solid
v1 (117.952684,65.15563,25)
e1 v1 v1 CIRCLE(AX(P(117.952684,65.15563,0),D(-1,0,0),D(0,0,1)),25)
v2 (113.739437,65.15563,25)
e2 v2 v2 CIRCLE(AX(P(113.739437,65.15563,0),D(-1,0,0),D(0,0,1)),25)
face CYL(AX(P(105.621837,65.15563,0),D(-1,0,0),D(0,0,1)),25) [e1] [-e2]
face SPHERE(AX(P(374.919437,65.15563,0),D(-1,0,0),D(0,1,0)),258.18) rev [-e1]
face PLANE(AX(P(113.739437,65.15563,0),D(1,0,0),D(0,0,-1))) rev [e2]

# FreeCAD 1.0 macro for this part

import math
import FreeCAD as App
import Part
import Sketcher

V = App.Vector
Q = App.Units.Quantity

doc = App.newDocument("Part")
body = doc.addObject("PartDesign::Body", "Body")

sketch1 = body.newObject("Sketcher::SketchObject", "Sketch")
sketch1.AttachmentSupport = (doc.getObject("XY_Plane"), [""])
sketch1.MapMode = "FlatFace"
sketch1.addGeometry(Part.LineSegment(V(113.7, 90.2, 0), V(113.7, 65.2, 0)), False)
sketch1.addGeometry(Part.LineSegment(V(113.7, 65.2, 0), V(116.7, 65.2, 0)), False)
sketch1.addGeometry(Part.ArcOfCircle(Part.Circle(V(374.9, 65.2, 0), V(0, 0, 1), 258.2), math.radians(174.44), math.radians(180)), False)
sketch1.addGeometry(Part.LineSegment(V(118, 90.2, 0), V(113.7, 90.2, 0)), False)
sketch1.addGeometry(Part.LineSegment(V(113.7, 65.2, 0), V(374.9, 65.2, 0)), True)
sketch1.addConstraint(Sketcher.Constraint("Coincident", 0, 2, 1, 1))
sketch1.addConstraint(Sketcher.Constraint("Coincident", 1, 2, 2, 2))
sketch1.addConstraint(Sketcher.Constraint("Coincident", 2, 1, 3, 1))
sketch1.addConstraint(Sketcher.Constraint("Coincident", 3, 2, 0, 1))
sketch1.addConstraint(Sketcher.Constraint("Vertical", 0))
sketch1.addConstraint(Sketcher.Constraint("Horizontal", 1))
sketch1.addConstraint(Sketcher.Constraint("Horizontal", 3))
sketch1.addConstraint(Sketcher.Constraint("Horizontal", 4))
sketch1.addConstraint(Sketcher.Constraint("Coincident", 4, 1, 0, 2))
sketch1.addConstraint(Sketcher.Constraint("Coincident", 4, 2, 2, 3))
sketch1.addConstraint(Sketcher.Constraint("DistanceX", 1, 1, 1, 2, Q("3 mm")))
sketch1.addConstraint(Sketcher.Constraint("DistanceY", 0, 2, 0, 1, Q("25 mm")))
sketch1.addConstraint(Sketcher.Constraint("Radius", 2, Q("258.18 mm")))
sketch1.addConstraint(Sketcher.Constraint("DistanceY", -1, 1, 2, 3, Q("65.15563 mm")))
sketch1.addConstraint(Sketcher.Constraint("DistanceX", -1, 1, 2, 3, Q("374.919437 mm")))
revolution = body.newObject("PartDesign::Revolution", "Revolution")
revolution.Profile = sketch1
revolution.ReferenceAxis = (sketch1, ["Axis0"])
revolution.Angle = 360

doc.recompute()
